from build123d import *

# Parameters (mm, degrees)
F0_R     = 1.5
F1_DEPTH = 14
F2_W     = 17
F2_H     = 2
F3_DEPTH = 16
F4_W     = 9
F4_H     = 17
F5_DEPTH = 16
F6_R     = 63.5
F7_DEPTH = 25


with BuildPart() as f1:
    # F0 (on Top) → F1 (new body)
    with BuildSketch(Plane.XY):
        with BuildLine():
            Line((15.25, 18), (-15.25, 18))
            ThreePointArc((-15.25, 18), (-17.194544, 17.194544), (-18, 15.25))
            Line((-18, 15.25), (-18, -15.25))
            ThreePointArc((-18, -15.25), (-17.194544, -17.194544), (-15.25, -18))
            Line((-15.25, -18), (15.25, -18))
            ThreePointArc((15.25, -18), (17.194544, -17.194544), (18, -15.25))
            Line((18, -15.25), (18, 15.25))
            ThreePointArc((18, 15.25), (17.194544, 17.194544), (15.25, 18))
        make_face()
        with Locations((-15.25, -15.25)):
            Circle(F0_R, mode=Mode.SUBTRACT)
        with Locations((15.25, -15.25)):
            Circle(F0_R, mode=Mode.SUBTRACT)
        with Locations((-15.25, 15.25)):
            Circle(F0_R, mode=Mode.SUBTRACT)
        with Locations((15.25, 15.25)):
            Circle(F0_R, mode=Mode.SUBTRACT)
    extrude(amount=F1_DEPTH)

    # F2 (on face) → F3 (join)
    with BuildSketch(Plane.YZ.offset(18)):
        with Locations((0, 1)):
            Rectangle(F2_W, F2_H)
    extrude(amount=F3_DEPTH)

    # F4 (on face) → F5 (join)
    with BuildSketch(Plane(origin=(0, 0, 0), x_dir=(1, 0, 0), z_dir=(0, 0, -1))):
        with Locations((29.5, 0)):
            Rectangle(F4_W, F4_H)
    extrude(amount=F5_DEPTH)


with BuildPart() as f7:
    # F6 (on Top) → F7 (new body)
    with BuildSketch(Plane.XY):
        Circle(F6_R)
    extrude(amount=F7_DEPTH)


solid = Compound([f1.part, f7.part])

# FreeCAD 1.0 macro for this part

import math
import FreeCAD as App
import Part
import Sketcher
from FreeCAD import Vector


def add_polygon(sketch, points):
    """Adds a closed chain of lines whose ends are joined by coincident constraints."""
    first, n = sketch.GeometryCount, len(points)
    for a, b in zip(points, points[1:] + points[:1]):
        sketch.addGeometry(Part.LineSegment(App.Vector(*a, 0), App.Vector(*b, 0)), False)
    for i in range(n):
        sketch.addConstraint(Sketcher.Constraint("Coincident", first + i, 2, first + (i + 1) % n, 1))

doc = App.newDocument("Part")
params = doc.addObject("Spreadsheet::Sheet", "Params")
for row, (alias, value) in enumerate([
    ("sketch1_diameter", "3 mm"),
    ("sketch1_radius", "2.749999 mm"),
    ("sketch1_width", "30.5 mm"),
    ("pad1_length", "14 mm"),
    ("sketch2_width", "17 mm"),
    ("sketch2_height", "2 mm"),
    ("pad2_length", "16 mm"),
    ("sketch3_width", "9 mm"),
    ("sketch3_height", "17 mm"),
    ("pad3_length", "16 mm"),
    ("sketch4_diameter", "127 mm"),
    ("pad4_length", "25 mm"),
], start=1):
    params.set(f"A{row}", alias)
    params.set(f"B{row}", "=" + value)
    params.setAlias(f"B{row}", alias)

body = doc.addObject("PartDesign::Body", "Body")

# Sketch on XY plane
sketch1 = body.newObject("Sketcher::SketchObject", "Sketch")
sketch1.AttachmentSupport = (doc.getObject("XY_Plane"), [""])
sketch1.MapMode = "FlatFace"
sketch1.addGeometry([
    Part.LineSegment(Vector(15.2, 18, 0), Vector(-15.2, 18, 0)),  # 0
    Part.ArcOfCircle(Part.Circle(Vector(-15.3, 15.3, 0), Vector(0, 0, 1), 2.7), math.radians(90), math.radians(180)),  # 1
    Part.LineSegment(Vector(-18, 15.2, 0), Vector(-18, -15.2, 0)),  # 2
    Part.ArcOfCircle(Part.Circle(Vector(-15.3, -15.3, 0), Vector(0, 0, 1), 2.7), math.radians(180), math.radians(270)),  # 3
    Part.LineSegment(Vector(-15.2, -18, 0), Vector(15.2, -18, 0)),  # 4
    Part.ArcOfCircle(Part.Circle(Vector(15.3, -15.3, 0), Vector(0, 0, 1), 2.7), math.radians(-90), math.radians(0)),  # 5
    Part.LineSegment(Vector(18, -15.2, 0), Vector(18, 15.2, 0)),  # 6
    Part.ArcOfCircle(Part.Circle(Vector(15.3, 15.3, 0), Vector(0, 0, 1), 2.7), math.radians(0), math.radians(90)),  # 7
    Part.Circle(Vector(-15.2, -15.2, 0), Vector(0, 0, 1), 1.5),  # 8
    Part.Circle(Vector(15.2, -15.2, 0), Vector(0, 0, 1), 1.5),  # 9
    Part.Circle(Vector(-15.2, 15.2, 0), Vector(0, 0, 1), 1.5),  # 10
    Part.Circle(Vector(15.2, 15.2, 0), Vector(0, 0, 1), 1.5),  # 11
], False)
sketch1.addConstraint([
    Sketcher.Constraint("Tangent", 0, 2, 1, 1),
    Sketcher.Constraint("Tangent", 1, 2, 2, 1),
    Sketcher.Constraint("Tangent", 2, 2, 3, 1),
    Sketcher.Constraint("Tangent", 3, 2, 4, 1),
    Sketcher.Constraint("Tangent", 4, 2, 5, 1),
    Sketcher.Constraint("Tangent", 5, 2, 6, 1),
    Sketcher.Constraint("Tangent", 6, 2, 7, 1),
    Sketcher.Constraint("Tangent", 7, 2, 0, 1),
    Sketcher.Constraint("Horizontal", 0),
    Sketcher.Constraint("Vertical", 2),
    Sketcher.Constraint("Horizontal", 4),
    Sketcher.Constraint("Vertical", 6),
    Sketcher.Constraint("Coincident", 8, 3, 3, 3),
    Sketcher.Constraint("Coincident", 9, 3, 5, 3),
    Sketcher.Constraint("Coincident", 10, 3, 1, 3),
    Sketcher.Constraint("Coincident", 11, 3, 7, 3),
    Sketcher.Constraint("Equal", 1, 3),
    Sketcher.Constraint("Equal", 3, 5),
    Sketcher.Constraint("Equal", 5, 7),
    Sketcher.Constraint("Equal", 8, 9),
    Sketcher.Constraint("Equal", 9, 10),
    Sketcher.Constraint("Equal", 10, 11),
    Sketcher.Constraint("Symmetric", 1, 3, 5, 3, -1, 1),
    Sketcher.Constraint("Equal", 4, 2),
    Sketcher.Constraint("Diameter", 8, 3.0),
    Sketcher.Constraint("Radius", 1, 2.749999),
    Sketcher.Constraint("DistanceX", 0, 2, 0, 1, 30.5),
])
sketch1.setExpression("Constraints[24]", "Params.sketch1_diameter")
sketch1.setExpression("Constraints[25]", "Params.sketch1_radius")
sketch1.setExpression("Constraints[26]", "Params.sketch1_width")
pad1 = body.newObject("PartDesign::Pad", "Pad")
pad1.Profile = sketch1
pad1.setExpression("Length", "Params.pad1_length")

# Sketch on YZ plane
sketch2 = body.newObject("Sketcher::SketchObject", "Sketch001")
sketch2.AttachmentSupport = (doc.getObject("YZ_Plane"), [""])
sketch2.MapMode = "FlatFace"
sketch2.AttachmentOffset = App.Placement(Vector(0, 0, 18), App.Rotation())
add_polygon(sketch2, [(-8.5, 2), (-8.5, 0), (8.5, 0), (8.5, 2)])  # lines 0-3
sketch2.addConstraint([
    Sketcher.Constraint("Vertical", 0),
    Sketcher.Constraint("Horizontal", 1),
    Sketcher.Constraint("Vertical", 2),
    Sketcher.Constraint("Horizontal", 3),
    Sketcher.Constraint("Symmetric", 0, 2, 1, 2, -1, 1),
    Sketcher.Constraint("DistanceX", 1, 1, 1, 2, 17.0),
    Sketcher.Constraint("DistanceY", 0, 2, 0, 1, 2.0),
])
sketch2.setExpression("Constraints[9]", "Params.sketch2_width")
sketch2.setExpression("Constraints[10]", "Params.sketch2_height")
pad2 = body.newObject("PartDesign::Pad", "Pad001")
pad2.Profile = sketch2
pad2.setExpression("Length", "Params.pad2_length")

# Sketch on XY plane
sketch3 = body.newObject("Sketcher::SketchObject", "Sketch002")
sketch3.AttachmentSupport = (doc.getObject("XY_Plane"), [""])
sketch3.MapMode = "FlatFace"
add_polygon(sketch3, [(25, -8), (25, 8), (34, 8), (34, -8)])  # lines 0-3
sketch3.addConstraint([
    Sketcher.Constraint("Vertical", 0),
    Sketcher.Constraint("Horizontal", 1),
    Sketcher.Constraint("Vertical", 2),
    Sketcher.Constraint("Horizontal", 3),
    Sketcher.Constraint("DistanceX", 1, 1, 1, 2, 9.0),
    Sketcher.Constraint("DistanceY", 0, 1, 0, 2, 17.0),
    Sketcher.Constraint("DistanceX", -1, 1, 0, 2, 25.0),
    Sketcher.Constraint("DistanceY", -1, 1, 0, 2, 8.5),
])
sketch3.setExpression("Constraints[8]", "Params.sketch3_width")
sketch3.setExpression("Constraints[9]", "Params.sketch3_height")
pad3 = body.newObject("PartDesign::Pad", "Pad002")
pad3.Profile = sketch3
pad3.setExpression("Length", "Params.pad3_length")
pad3.Reversed = True
body2 = doc.addObject("PartDesign::Body", "Body001")

# Sketch on XY plane
sketch4 = body2.newObject("Sketcher::SketchObject", "Sketch003")
sketch4.AttachmentSupport = (doc.getObject("XY_Plane001"), [""])
sketch4.MapMode = "FlatFace"
sketch4.addGeometry(Part.Circle(Vector(0, 0, 0), Vector(0, 0, 1), 64), False)
sketch4.addConstraint([
    Sketcher.Constraint("Coincident", 0, 3, -1, 1),
    Sketcher.Constraint("Diameter", 0, 127.0),
])
sketch4.setExpression("Constraints[1]", "Params.sketch4_diameter")
pad4 = body2.newObject("PartDesign::Pad", "Pad003")
pad4.Profile = sketch4
pad4.setExpression("Length", "Params.pad4_length")

doc.recompute()
